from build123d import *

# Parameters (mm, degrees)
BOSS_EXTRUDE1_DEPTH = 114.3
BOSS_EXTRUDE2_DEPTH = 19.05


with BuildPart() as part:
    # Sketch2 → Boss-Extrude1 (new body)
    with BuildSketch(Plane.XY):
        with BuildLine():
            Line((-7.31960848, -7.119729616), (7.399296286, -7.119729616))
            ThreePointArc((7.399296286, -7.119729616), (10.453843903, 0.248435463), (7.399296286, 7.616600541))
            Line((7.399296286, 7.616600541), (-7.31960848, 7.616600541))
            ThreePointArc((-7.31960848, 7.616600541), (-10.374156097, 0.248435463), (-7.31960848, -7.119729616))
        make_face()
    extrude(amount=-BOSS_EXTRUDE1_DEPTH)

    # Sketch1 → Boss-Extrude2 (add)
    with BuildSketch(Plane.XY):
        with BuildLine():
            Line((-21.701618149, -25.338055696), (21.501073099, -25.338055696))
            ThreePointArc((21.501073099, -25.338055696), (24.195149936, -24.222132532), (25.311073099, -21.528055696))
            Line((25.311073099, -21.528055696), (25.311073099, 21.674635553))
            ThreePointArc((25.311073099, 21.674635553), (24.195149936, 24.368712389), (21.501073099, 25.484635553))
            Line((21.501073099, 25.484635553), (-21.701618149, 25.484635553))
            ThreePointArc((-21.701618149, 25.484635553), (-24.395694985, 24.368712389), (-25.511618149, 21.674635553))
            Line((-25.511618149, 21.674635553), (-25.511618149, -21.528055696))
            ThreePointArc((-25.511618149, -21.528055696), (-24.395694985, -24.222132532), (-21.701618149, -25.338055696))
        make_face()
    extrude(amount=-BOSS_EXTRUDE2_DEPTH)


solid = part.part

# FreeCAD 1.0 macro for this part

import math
import FreeCAD as App
import Part
import Sketcher
from FreeCAD import Vector
Q = App.Units.Quantity

doc = App.newDocument("Part")
body = doc.addObject("PartDesign::Body", "Body")

sketch1 = body.newObject("Sketcher::SketchObject", "Sketch")
sketch1.AttachmentSupport = (doc.getObject("XY_Plane"), [""])
sketch1.MapMode = "FlatFace"
sketch1.addGeometry([
    Part.LineSegment(Vector(-7, -7, 0), Vector(7, -7, 0)),
    Part.ArcOfCircle(Part.Circle(Vector(0, 0, 0), Vector(0, 0, 1), 10), math.radians(-45), math.radians(45)),
    Part.LineSegment(Vector(7, 8, 0), Vector(-7, 8, 0)),
    Part.ArcOfCircle(Part.Circle(Vector(0, 0, 0), Vector(0, 0, 1), 10), math.radians(135), math.radians(225)),
], False)
sketch1.addConstraint([
    Sketcher.Constraint("Coincident", 0, 2, 1, 1),
    Sketcher.Constraint("Coincident", 1, 2, 2, 1),
    Sketcher.Constraint("Coincident", 2, 2, 3, 1),
    Sketcher.Constraint("Coincident", 3, 2, 0, 1),
    Sketcher.Constraint("Horizontal", 0),
    Sketcher.Constraint("Horizontal", 2),
    Sketcher.Constraint("Coincident", 3, 3, 1, 3),
    Sketcher.Constraint("Equal", 1, 3),
    Sketcher.Constraint("Vertical", 0, 2, 1, 2),
    Sketcher.Constraint("Radius", 1, Q("0.41 in")),
    Sketcher.Constraint("DistanceY", -1, 1, 1, 2, Q("7.616601 mm")),
    Sketcher.Constraint("DistanceX", 0, 1, 0, 2, Q("14.718905 mm")),
    Sketcher.Constraint("DistanceX", 2, 2, -1, 1, Q("7.319608 mm")),
])
pad1 = body.newObject("PartDesign::Pad", "Pad")
pad1.Profile = sketch1
pad1.Length = Q("4.5 in")
pad1.Reversed = True

sketch2 = body.newObject("Sketcher::SketchObject", "Sketch001")
sketch2.AttachmentSupport = (doc.getObject("XY_Plane"), [""])
sketch2.MapMode = "FlatFace"
sketch2.addGeometry([
    Part.LineSegment(Vector(-21.7, -25.3, 0), Vector(21.5, -25.3, 0)),
    Part.ArcOfCircle(Part.Circle(Vector(21.5, -21.5, 0), Vector(0, 0, 1), 3.8), math.radians(-90), math.radians(0)),
    Part.LineSegment(Vector(25.3, -21.5, 0), Vector(25.3, 21.7, 0)),
    Part.ArcOfCircle(Part.Circle(Vector(21.5, 21.7, 0), Vector(0, 0, 1), 3.8), math.radians(0), math.radians(90)),
    Part.LineSegment(Vector(21.5, 25.5, 0), Vector(-21.7, 25.5, 0)),
    Part.ArcOfCircle(Part.Circle(Vector(-21.7, 21.7, 0), Vector(0, 0, 1), 3.8), math.radians(90), math.radians(180)),
    Part.LineSegment(Vector(-25.5, 21.7, 0), Vector(-25.5, -21.5, 0)),
    Part.ArcOfCircle(Part.Circle(Vector(-21.7, -21.5, 0), Vector(0, 0, 1), 3.8), math.radians(-180), math.radians(-90)),
], False)
sketch2.addConstraint([
    Sketcher.Constraint("Tangent", 0, 2, 1, 1),
    Sketcher.Constraint("Tangent", 1, 2, 2, 1),
    Sketcher.Constraint("Tangent", 2, 2, 3, 1),
    Sketcher.Constraint("Tangent", 3, 2, 4, 1),
    Sketcher.Constraint("Tangent", 4, 2, 5, 1),
    Sketcher.Constraint("Tangent", 5, 2, 6, 1),
    Sketcher.Constraint("Tangent", 6, 2, 7, 1),
    Sketcher.Constraint("Tangent", 7, 2, 0, 1),
    Sketcher.Constraint("Horizontal", 0),
    Sketcher.Constraint("Vertical", 2),
    Sketcher.Constraint("Horizontal", 4),
    Sketcher.Constraint("Vertical", 6),
    Sketcher.Constraint("Equal", 1, 3),
    Sketcher.Constraint("Equal", 3, 5),
    Sketcher.Constraint("Equal", 5, 7),
    Sketcher.Constraint("Equal", 4, 2),
    Sketcher.Constraint("Radius", 1, Q("0.15 in")),
    Sketcher.Constraint("DistanceX", 0, 1, 0, 2, Q("43.202691 mm")),
    Sketcher.Constraint("DistanceX", 5, 3, -1, 1, Q("21.701618 mm")),
    Sketcher.Constraint("DistanceY", 1, 3, -1, 1, Q("21.528056 mm")),
])
pad2 = body.newObject("PartDesign::Pad", "Pad001")
pad2.Profile = sketch2
pad2.Length = Q("0.75 in")
pad2.Reversed = True

doc.recompute()
